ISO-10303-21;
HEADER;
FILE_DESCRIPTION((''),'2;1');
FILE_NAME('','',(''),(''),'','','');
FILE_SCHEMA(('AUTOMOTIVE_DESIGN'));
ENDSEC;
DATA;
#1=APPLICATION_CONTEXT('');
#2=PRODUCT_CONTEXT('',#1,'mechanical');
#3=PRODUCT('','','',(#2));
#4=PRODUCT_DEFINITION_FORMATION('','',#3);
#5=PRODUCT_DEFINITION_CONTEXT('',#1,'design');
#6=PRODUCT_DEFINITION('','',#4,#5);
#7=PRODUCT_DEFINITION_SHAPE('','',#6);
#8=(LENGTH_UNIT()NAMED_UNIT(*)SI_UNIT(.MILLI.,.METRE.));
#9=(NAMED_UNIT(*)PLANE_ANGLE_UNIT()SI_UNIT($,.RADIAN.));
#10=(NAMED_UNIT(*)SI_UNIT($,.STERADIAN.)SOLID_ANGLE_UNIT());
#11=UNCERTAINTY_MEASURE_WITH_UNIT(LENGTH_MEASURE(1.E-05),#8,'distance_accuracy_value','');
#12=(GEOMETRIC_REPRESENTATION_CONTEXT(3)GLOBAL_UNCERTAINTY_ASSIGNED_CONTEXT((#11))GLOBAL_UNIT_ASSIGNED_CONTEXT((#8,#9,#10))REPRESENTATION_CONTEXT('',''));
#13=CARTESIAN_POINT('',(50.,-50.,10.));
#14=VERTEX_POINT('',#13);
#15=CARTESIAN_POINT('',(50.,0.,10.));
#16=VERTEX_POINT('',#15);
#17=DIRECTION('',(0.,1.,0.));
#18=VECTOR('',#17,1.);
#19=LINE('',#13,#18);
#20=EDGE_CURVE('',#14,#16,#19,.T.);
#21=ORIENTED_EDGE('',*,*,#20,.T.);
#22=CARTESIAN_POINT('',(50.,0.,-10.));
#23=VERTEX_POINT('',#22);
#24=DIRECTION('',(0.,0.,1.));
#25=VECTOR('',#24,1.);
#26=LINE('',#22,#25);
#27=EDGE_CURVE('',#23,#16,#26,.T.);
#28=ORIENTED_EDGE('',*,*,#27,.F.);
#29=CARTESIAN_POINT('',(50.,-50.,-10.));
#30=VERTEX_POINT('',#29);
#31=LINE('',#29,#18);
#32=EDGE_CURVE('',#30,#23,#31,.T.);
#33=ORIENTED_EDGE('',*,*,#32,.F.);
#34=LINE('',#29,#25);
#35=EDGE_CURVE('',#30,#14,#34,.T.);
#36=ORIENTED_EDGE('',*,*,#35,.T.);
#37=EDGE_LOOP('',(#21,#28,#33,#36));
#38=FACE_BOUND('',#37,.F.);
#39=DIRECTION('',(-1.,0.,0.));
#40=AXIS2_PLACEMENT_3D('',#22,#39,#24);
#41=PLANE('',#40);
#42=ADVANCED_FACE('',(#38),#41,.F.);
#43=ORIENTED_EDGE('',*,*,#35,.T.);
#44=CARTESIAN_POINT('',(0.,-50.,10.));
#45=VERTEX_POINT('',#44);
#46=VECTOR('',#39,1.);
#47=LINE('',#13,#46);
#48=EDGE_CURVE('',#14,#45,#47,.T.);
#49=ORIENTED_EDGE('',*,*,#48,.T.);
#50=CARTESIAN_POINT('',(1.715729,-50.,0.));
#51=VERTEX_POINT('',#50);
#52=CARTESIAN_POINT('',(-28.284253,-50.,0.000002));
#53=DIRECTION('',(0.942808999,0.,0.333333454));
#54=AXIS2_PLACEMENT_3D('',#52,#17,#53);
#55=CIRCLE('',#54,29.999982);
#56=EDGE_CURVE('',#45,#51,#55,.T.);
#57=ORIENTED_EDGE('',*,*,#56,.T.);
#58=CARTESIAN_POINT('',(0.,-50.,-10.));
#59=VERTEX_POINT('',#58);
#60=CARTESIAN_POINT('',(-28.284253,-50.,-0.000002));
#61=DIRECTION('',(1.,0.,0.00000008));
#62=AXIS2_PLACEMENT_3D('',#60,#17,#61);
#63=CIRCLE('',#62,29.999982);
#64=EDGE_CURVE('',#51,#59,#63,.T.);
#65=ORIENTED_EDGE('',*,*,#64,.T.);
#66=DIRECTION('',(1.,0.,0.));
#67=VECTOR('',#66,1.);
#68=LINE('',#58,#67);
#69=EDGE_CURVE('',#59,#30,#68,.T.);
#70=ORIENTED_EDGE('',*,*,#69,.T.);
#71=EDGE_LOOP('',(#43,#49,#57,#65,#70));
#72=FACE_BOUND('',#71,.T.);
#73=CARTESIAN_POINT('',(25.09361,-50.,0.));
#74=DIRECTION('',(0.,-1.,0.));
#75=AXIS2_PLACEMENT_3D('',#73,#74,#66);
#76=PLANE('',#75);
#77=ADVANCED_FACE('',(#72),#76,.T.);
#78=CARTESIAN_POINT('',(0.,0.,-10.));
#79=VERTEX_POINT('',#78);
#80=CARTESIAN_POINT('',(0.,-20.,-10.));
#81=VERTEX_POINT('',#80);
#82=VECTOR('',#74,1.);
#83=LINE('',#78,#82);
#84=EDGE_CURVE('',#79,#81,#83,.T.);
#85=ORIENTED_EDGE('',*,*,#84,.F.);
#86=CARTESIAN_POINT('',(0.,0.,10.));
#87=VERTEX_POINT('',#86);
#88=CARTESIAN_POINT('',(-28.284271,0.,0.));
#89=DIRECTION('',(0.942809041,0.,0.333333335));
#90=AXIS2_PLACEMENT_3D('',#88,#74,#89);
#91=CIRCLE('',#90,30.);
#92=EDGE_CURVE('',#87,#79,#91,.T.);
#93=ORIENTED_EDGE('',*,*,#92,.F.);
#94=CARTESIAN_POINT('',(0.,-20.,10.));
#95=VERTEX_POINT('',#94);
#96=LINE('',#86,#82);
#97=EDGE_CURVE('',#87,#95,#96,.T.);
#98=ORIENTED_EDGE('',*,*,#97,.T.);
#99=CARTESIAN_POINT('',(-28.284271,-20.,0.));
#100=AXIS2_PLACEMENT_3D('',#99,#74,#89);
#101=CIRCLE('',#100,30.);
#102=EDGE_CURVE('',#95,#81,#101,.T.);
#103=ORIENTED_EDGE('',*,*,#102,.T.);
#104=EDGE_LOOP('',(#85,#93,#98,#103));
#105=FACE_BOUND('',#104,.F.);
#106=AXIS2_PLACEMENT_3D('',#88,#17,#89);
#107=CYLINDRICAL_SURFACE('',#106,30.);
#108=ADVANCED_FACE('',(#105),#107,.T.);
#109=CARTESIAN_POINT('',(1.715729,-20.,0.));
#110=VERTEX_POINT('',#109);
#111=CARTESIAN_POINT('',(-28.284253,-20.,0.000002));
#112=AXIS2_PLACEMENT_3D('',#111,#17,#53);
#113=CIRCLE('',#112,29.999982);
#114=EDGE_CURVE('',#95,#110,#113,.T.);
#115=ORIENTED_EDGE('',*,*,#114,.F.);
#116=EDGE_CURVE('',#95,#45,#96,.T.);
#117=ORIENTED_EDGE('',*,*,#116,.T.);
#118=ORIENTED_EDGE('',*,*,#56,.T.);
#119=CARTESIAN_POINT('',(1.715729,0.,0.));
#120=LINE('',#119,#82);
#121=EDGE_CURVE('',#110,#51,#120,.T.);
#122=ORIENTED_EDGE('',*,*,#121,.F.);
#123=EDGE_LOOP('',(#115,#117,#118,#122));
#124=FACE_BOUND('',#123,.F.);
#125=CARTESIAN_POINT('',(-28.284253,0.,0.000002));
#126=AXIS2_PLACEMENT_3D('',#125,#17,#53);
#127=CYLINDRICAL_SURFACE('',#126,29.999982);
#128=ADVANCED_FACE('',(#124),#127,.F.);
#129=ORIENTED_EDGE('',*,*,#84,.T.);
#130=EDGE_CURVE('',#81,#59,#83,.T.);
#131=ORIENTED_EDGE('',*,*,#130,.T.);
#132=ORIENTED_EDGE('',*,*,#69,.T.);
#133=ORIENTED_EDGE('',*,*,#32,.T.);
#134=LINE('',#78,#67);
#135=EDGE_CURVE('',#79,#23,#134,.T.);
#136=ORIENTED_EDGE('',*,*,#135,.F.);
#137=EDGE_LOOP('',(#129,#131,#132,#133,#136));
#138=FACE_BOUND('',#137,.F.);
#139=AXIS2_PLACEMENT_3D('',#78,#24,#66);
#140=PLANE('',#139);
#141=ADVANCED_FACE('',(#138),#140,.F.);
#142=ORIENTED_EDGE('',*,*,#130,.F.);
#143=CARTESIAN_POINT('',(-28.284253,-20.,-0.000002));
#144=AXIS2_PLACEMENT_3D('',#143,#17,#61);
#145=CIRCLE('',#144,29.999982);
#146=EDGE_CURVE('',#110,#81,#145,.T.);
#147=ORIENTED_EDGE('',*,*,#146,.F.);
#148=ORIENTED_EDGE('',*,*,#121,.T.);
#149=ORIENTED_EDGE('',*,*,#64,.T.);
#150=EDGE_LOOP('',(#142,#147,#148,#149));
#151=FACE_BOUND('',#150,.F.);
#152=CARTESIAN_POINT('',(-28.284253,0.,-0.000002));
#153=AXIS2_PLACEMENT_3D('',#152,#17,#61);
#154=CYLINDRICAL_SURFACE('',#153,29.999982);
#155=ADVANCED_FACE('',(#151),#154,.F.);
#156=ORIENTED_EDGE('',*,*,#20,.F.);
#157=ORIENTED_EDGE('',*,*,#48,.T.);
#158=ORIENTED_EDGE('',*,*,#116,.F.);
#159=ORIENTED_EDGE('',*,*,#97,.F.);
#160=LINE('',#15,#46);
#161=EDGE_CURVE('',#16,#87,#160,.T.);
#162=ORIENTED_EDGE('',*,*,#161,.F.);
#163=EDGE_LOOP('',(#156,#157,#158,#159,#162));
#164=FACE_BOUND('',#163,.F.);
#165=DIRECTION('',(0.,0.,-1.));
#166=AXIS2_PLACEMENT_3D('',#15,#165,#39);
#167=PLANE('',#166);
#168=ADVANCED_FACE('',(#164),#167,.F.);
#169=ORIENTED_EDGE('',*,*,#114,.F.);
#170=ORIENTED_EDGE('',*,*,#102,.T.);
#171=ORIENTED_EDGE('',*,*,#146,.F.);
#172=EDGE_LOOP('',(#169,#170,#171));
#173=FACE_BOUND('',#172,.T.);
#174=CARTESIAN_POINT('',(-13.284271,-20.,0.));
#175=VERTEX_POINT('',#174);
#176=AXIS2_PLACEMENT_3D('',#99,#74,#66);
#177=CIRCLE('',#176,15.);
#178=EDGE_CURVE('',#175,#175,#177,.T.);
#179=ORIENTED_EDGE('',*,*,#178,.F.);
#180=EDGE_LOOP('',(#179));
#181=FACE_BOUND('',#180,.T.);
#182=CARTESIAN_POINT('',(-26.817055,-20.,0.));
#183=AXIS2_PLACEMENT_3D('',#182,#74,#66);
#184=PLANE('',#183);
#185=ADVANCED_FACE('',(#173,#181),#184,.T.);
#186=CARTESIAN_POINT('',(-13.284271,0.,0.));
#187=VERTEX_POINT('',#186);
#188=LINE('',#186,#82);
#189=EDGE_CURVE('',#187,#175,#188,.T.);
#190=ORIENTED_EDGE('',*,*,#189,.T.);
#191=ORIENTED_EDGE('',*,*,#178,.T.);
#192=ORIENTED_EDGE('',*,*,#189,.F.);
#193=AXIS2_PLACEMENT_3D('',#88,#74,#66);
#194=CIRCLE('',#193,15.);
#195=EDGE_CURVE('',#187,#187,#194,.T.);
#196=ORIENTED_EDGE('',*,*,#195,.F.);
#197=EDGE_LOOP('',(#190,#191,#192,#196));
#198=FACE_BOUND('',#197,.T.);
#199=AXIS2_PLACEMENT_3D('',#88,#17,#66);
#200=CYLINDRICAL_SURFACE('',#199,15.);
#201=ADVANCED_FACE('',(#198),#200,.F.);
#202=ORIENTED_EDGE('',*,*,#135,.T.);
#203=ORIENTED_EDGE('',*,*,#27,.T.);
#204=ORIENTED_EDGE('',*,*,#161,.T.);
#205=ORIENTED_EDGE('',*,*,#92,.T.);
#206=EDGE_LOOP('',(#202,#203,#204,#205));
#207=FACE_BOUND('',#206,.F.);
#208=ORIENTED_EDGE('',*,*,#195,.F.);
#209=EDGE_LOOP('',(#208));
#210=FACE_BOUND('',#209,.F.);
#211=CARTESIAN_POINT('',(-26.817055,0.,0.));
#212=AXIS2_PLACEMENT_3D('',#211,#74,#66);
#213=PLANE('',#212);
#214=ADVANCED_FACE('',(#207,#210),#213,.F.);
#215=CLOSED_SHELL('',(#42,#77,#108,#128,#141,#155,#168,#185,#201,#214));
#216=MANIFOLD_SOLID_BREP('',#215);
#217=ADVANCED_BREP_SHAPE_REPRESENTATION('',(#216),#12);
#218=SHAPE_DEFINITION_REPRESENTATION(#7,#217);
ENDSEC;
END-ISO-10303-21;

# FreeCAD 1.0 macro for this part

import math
import FreeCAD as App
import Part
import Sketcher

doc = App.newDocument("Part")
body = doc.addObject("PartDesign::Body", "Body")

# Sketch on XZ plane
sketch1 = doc.addObject("Sketcher::SketchObject", "Sketch")
body.addObject(sketch1)
sketch1.AttachmentSupport = (doc.XZ_Plane, [""])
sketch1.MapMode = "FlatFace"
sketch1.addGeometry([
    Part.ArcOfCircle(Part.Circle(App.Vector(-28.284271, 0, 0), App.Vector(0, 0, 1), 30), math.radians(19.471221), math.radians(340.528779)),  # 0
    Part.LineSegment(App.Vector(0, -10, 0), App.Vector(50, -10, 0)),  # 1
    Part.LineSegment(App.Vector(50, -10, 0), App.Vector(50, 10, 0)),  # 2
    Part.LineSegment(App.Vector(50, 10, 0), App.Vector(0, 10, 0)),  # 3
    Part.Circle(App.Vector(-28.284271, 0, 0), App.Vector(0, 0, 1), 15),  # 4
], False)
sketch1.addConstraint([
    Sketcher.Constraint("Coincident", 0, 2, 1, 1),
    Sketcher.Constraint("Coincident", 1, 2, 2, 1),
    Sketcher.Constraint("Coincident", 2, 2, 3, 1),
    Sketcher.Constraint("Coincident", 3, 2, 0, 1),
    Sketcher.Constraint("Horizontal", 1),
    Sketcher.Constraint("Vertical", 2),
    Sketcher.Constraint("Horizontal", 3),
    Sketcher.Constraint("Coincident", 4, 3, 0, 3),
    Sketcher.Constraint("Symmetric", 0, 2, 3, 2, -1, 1),
    Sketcher.Constraint("PointOnObject", 0, 3, -1),
    Sketcher.Constraint("Diameter", 4, 30.0),
    Sketcher.Constraint("Radius", 0, 30.0),
    Sketcher.Constraint("DistanceX", 1, 1, 1, 2, 50.0),
    Sketcher.Constraint("DistanceY", 2, 1, 2, 2, 20.0),
])
pad1 = doc.addObject("PartDesign::Pad", "Pad")
body.addObject(pad1)
pad1.Profile = sketch1
pad1.Length = 20

# Sketch on XZ plane
sketch2 = doc.addObject("Sketcher::SketchObject", "Sketch001")
body.addObject(sketch2)
sketch2.AttachmentSupport = (doc.XZ_Plane, [""])
sketch2.MapMode = "FlatFace"
sketch2.addGeometry([
    Part.ArcOfCircle(Part.Circle(App.Vector(-28.284253, 0.000002, 0), App.Vector(0, 0, 1), 29.999982), math.radians(-0.000005), math.radians(19.471228)),  # 0
    Part.ArcOfCircle(Part.Circle(App.Vector(-28.284253, -0.000002, 0), App.Vector(0, 0, 1), 29.999982), math.radians(-19.471228), math.radians(0.000005)),  # 1
    Part.LineSegment(App.Vector(0, -10, 0), App.Vector(50, -10, 0)),  # 2
    Part.LineSegment(App.Vector(50, -10, 0), App.Vector(50, 10, 0)),  # 3
    Part.LineSegment(App.Vector(50, 10, 0), App.Vector(0, 10, 0)),  # 4
], False)
sketch2.addConstraint([
    Sketcher.Constraint("Tangent", 0, 1, 1, 2),
    Sketcher.Constraint("Coincident", 1, 1, 2, 1),
    Sketcher.Constraint("Coincident", 2, 2, 3, 1),
    Sketcher.Constraint("Coincident", 3, 2, 4, 1),
    Sketcher.Constraint("Coincident", 4, 2, 0, 2),
    Sketcher.Constraint("Horizontal", 2),
    Sketcher.Constraint("Vertical", 3),
    Sketcher.Constraint("Horizontal", 4),
    Sketcher.Constraint("Equal", 0, 1),
    Sketcher.Constraint("Symmetric", 1, 1, 4, 2, -1, 1),
    Sketcher.Constraint("PointOnObject", 0, 1, -1),
    Sketcher.Constraint("PointOnObject", 1, 1, -2),
    Sketcher.Constraint("DistanceX", 2, 1, 2, 2, 50.0),
    Sketcher.Constraint("DistanceY", 3, 1, 3, 2, 20.0),
    Sketcher.Constraint("Radius", 0, 29.999982),
])
pad2 = doc.addObject("PartDesign::Pad", "Pad001")
body.addObject(pad2)
pad2.Profile = sketch2
pad2.Length = 50

doc.recompute()
